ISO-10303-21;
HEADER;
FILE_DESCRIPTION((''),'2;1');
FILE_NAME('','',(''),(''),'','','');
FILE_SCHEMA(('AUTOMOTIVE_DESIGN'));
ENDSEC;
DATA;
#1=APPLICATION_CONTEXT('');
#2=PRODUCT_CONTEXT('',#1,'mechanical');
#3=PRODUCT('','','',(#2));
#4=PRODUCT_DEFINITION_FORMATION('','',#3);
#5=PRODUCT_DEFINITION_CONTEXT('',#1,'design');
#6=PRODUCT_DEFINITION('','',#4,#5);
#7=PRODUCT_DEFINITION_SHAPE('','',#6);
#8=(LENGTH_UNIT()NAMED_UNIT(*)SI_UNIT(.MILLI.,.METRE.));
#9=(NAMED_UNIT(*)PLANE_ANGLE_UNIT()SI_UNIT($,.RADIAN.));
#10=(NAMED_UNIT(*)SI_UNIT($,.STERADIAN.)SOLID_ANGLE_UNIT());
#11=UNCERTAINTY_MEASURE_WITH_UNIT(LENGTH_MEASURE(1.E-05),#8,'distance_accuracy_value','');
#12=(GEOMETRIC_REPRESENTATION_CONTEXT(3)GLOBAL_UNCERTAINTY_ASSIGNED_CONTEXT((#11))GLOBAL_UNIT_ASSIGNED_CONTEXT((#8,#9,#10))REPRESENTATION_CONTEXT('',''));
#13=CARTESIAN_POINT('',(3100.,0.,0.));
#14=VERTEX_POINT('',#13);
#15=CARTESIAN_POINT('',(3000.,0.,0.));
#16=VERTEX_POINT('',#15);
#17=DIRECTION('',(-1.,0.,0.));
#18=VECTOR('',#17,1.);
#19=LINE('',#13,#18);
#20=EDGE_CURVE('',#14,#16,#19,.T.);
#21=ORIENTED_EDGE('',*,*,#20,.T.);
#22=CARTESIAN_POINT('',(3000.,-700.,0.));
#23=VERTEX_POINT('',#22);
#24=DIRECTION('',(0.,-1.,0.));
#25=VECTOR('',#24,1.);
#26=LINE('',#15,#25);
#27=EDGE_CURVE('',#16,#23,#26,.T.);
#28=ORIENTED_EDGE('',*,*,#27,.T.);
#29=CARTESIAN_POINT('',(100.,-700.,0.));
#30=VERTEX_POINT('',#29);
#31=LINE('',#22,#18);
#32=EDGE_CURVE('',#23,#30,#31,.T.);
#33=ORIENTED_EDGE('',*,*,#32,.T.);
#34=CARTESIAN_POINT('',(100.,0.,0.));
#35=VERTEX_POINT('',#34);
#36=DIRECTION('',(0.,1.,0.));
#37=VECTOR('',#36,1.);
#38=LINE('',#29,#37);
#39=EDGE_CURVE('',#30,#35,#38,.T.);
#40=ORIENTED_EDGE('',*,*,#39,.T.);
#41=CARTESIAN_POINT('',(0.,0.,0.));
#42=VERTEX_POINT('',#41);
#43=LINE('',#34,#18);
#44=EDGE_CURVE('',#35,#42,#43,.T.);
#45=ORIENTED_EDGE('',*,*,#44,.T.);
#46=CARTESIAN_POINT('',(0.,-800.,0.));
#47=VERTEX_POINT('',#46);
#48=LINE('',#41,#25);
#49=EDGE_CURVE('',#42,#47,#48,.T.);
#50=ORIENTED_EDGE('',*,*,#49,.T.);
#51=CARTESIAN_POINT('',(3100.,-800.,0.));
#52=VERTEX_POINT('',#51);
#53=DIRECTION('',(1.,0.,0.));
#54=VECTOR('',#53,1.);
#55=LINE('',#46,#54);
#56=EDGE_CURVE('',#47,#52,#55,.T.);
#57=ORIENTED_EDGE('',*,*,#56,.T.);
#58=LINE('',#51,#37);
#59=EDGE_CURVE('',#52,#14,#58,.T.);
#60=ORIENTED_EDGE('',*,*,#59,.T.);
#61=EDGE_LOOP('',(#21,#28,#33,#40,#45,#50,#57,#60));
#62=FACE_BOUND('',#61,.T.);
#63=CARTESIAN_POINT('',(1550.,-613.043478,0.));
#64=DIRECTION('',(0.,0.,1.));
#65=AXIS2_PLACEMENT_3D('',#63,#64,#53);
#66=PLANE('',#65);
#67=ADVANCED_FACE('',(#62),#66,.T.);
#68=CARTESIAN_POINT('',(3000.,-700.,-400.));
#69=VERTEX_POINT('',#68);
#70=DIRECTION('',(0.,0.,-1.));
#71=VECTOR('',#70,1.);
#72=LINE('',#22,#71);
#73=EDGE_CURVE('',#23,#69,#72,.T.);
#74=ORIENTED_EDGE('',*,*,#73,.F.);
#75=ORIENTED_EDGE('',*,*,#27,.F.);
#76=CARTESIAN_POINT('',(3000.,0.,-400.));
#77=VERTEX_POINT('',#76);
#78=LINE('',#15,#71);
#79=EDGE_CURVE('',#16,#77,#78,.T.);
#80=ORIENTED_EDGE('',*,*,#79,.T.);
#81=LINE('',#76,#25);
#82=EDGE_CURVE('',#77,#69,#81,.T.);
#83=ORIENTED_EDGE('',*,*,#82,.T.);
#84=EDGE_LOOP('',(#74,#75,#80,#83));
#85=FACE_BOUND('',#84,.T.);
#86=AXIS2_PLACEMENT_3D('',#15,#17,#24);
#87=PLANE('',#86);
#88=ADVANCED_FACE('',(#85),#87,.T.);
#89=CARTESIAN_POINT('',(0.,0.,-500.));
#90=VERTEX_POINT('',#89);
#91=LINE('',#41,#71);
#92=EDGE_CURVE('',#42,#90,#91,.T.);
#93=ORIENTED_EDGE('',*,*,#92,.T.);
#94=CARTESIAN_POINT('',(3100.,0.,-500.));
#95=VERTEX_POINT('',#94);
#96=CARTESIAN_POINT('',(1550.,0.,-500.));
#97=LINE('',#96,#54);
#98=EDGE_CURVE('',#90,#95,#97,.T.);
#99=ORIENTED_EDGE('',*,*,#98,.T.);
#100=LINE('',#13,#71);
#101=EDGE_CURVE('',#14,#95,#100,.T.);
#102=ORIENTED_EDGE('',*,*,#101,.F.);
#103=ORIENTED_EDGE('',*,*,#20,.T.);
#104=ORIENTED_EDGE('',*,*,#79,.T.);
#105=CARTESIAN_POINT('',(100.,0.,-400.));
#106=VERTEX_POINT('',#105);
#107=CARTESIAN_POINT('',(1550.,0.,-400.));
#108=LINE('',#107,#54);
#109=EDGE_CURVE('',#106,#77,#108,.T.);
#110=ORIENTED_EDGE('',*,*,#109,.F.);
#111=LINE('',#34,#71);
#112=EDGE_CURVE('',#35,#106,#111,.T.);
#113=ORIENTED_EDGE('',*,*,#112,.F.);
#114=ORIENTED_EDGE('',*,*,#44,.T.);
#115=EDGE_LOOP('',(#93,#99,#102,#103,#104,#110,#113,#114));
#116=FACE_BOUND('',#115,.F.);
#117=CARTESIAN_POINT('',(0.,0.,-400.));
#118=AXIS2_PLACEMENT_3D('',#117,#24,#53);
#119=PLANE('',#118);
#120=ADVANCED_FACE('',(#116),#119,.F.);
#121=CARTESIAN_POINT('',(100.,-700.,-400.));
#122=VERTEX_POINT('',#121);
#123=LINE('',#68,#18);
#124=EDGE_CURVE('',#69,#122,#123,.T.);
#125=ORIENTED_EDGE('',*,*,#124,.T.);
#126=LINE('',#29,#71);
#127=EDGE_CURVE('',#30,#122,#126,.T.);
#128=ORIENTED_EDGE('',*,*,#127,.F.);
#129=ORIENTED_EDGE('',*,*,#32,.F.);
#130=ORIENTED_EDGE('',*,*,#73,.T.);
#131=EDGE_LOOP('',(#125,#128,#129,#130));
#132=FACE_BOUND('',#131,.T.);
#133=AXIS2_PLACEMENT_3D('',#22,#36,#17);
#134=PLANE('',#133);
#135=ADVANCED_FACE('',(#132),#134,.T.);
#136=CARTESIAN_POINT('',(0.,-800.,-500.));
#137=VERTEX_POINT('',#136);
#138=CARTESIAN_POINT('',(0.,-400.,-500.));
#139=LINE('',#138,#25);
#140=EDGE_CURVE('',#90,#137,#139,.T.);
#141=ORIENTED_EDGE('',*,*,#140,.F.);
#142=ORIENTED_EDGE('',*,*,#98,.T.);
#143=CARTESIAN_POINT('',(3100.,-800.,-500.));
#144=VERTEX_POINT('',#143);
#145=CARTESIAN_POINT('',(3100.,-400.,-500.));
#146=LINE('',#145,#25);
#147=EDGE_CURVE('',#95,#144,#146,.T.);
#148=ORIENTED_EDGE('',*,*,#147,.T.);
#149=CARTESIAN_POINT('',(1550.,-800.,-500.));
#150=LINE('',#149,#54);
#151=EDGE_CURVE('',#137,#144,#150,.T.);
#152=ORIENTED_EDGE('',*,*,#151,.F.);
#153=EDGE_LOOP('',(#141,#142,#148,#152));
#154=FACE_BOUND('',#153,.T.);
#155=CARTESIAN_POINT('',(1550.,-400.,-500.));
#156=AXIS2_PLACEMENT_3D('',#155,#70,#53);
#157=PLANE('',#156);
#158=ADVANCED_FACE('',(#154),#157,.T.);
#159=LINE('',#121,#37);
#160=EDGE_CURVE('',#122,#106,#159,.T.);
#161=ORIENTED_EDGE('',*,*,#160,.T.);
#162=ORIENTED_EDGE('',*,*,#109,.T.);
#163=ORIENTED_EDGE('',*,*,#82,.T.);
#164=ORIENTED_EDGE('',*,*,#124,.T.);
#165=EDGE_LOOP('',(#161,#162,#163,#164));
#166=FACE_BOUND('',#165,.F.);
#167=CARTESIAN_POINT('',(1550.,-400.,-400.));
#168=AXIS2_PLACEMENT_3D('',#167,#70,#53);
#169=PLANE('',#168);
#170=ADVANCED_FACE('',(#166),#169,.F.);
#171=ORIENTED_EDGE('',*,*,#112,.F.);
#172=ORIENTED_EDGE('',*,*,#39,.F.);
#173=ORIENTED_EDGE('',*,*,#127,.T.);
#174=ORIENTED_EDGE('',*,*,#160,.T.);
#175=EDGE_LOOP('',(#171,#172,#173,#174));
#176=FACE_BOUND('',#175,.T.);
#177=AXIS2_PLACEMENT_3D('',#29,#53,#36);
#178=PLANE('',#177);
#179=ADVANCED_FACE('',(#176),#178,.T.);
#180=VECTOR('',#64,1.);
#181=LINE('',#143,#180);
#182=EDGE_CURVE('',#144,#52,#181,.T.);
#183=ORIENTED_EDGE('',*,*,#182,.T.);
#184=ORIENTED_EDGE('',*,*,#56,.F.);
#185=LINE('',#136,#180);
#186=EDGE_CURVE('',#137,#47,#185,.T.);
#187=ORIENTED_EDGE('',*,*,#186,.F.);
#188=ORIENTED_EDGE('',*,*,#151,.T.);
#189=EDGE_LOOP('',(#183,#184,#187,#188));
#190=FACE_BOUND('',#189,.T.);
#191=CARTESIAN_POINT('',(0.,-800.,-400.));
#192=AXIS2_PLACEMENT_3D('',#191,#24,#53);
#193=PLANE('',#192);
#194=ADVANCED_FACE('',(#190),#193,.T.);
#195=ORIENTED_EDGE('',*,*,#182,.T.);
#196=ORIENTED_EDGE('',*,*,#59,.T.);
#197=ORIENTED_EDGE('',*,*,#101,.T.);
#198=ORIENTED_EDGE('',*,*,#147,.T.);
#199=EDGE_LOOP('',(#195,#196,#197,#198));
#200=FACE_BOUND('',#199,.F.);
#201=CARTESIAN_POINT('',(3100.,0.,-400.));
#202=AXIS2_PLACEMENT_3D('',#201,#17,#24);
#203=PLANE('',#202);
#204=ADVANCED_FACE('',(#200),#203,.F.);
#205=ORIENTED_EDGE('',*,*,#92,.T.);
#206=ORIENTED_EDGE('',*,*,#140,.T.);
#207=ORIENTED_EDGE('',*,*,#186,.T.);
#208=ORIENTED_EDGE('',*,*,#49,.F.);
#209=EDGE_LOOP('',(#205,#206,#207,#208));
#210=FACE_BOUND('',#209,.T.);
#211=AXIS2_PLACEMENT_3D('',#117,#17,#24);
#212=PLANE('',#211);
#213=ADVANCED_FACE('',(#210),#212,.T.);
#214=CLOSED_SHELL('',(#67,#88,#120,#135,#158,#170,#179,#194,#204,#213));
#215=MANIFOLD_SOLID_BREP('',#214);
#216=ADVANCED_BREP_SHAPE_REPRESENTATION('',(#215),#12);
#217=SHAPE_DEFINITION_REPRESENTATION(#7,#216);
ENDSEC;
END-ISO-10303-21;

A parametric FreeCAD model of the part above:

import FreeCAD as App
import Part
import Sketcher

doc = App.newDocument("Part")
body = doc.addObject("PartDesign::Body", "Body")

# Sketch on XY plane
sketch1 = doc.addObject("Sketcher::SketchObject", "Sketch")
body.addObject(sketch1)
sketch1.AttachmentSupport = (doc.XY_Plane, [""])
sketch1.MapMode = "FlatFace"
sketch1.addGeometry([
    Part.LineSegment(App.Vector(100, 0, 0), App.Vector(0, 0, 0)),  # 0
    Part.LineSegment(App.Vector(0, 0, 0), App.Vector(0, -800, 0)),  # 1
    Part.LineSegment(App.Vector(0, -800, 0), App.Vector(3100, -800, 0)),  # 2
    Part.LineSegment(App.Vector(3100, -800, 0), App.Vector(3100, 0, 0)),  # 3
    Part.LineSegment(App.Vector(3100, 0, 0), App.Vector(3000, 0, 0)),  # 4
    Part.LineSegment(App.Vector(3000, 0, 0), App.Vector(3000, -700, 0)),  # 5
    Part.LineSegment(App.Vector(3000, -700, 0), App.Vector(100, -700, 0)),  # 6
    Part.LineSegment(App.Vector(100, -700, 0), App.Vector(100, 0, 0)),  # 7
], False)
sketch1.addConstraint([
    Sketcher.Constraint("Coincident", 0, 2, 1, 1),
    Sketcher.Constraint("Coincident", 1, 2, 2, 1),
    Sketcher.Constraint("Coincident", 2, 2, 3, 1),
    Sketcher.Constraint("Coincident", 3, 2, 4, 1),
    Sketcher.Constraint("Coincident", 4, 2, 5, 1),
    Sketcher.Constraint("Coincident", 5, 2, 6, 1),
    Sketcher.Constraint("Coincident", 6, 2, 7, 1),
    Sketcher.Constraint("Coincident", 7, 2, 0, 1),
    Sketcher.Constraint("Horizontal", 0),
    Sketcher.Constraint("Vertical", 1),
    Sketcher.Constraint("Horizontal", 2),
    Sketcher.Constraint("Vertical", 3),
    Sketcher.Constraint("Horizontal", 4),
    Sketcher.Constraint("Vertical", 5),
    Sketcher.Constraint("Horizontal", 6),
    Sketcher.Constraint("Vertical", 7),
    Sketcher.Constraint("Coincident", 0, 2, -1, 1),
    Sketcher.Constraint("PointOnObject", 3, 2, -1),
    Sketcher.Constraint("Equal", 0, 4),
    Sketcher.Constraint("DistanceX", 0, 2, 0, 1, 100.0),
    Sketcher.Constraint("DistanceX", 2, 1, 2, 2, 3100.0),
    Sketcher.Constraint("DistanceY", 1, 2, 1, 1, 800.0),
    Sketcher.Constraint("DistanceY", 5, 2, 5, 1, 700.0),
])
pad1 = doc.addObject("PartDesign::Pad", "Pad")
body.addObject(pad1)
pad1.Profile = sketch1
pad1.Length = 400
pad1.Reversed = True

# Sketch on XY plane
sketch2 = doc.addObject("Sketcher::SketchObject", "Sketch001")
body.addObject(sketch2)
sketch2.AttachmentSupport = (doc.XY_Plane, [""])
sketch2.MapMode = "FlatFace"
sketch2.AttachmentOffset = App.Placement(App.Vector(0, 0, -400), App.Rotation())
sketch2.addGeometry([
    Part.LineSegment(App.Vector(0, -800, 0), App.Vector(0, 0, 0)),
    Part.LineSegment(App.Vector(0, 0, 0), App.Vector(3100, 0, 0)),
    Part.LineSegment(App.Vector(3100, 0, 0), App.Vector(3100, -800, 0)),
    Part.LineSegment(App.Vector(3100, -800, 0), App.Vector(0, -800, 0)),
], False)
sketch2.addConstraint([
    Sketcher.Constraint("Coincident", 0, 2, 1, 1),
    Sketcher.Constraint("Coincident", 1, 2, 2, 1),
    Sketcher.Constraint("Coincident", 2, 2, 3, 1),
    Sketcher.Constraint("Coincident", 3, 2, 0, 1),
    Sketcher.Constraint("Vertical", 0),
    Sketcher.Constraint("Horizontal", 1),
    Sketcher.Constraint("Vertical", 2),
    Sketcher.Constraint("Horizontal", 3),
    Sketcher.Constraint("Coincident", 0, 2, -1, 1),
    Sketcher.Constraint("DistanceX", 1, 1, 1, 2, 3100.0),
    Sketcher.Constraint("DistanceY", 0, 1, 0, 2, 800.0),
])
pad2 = doc.addObject("PartDesign::Pad", "Pad001")
body.addObject(pad2)
pad2.Profile = sketch2
pad2.Length = 100
pad2.Reversed = True

doc.recompute()
